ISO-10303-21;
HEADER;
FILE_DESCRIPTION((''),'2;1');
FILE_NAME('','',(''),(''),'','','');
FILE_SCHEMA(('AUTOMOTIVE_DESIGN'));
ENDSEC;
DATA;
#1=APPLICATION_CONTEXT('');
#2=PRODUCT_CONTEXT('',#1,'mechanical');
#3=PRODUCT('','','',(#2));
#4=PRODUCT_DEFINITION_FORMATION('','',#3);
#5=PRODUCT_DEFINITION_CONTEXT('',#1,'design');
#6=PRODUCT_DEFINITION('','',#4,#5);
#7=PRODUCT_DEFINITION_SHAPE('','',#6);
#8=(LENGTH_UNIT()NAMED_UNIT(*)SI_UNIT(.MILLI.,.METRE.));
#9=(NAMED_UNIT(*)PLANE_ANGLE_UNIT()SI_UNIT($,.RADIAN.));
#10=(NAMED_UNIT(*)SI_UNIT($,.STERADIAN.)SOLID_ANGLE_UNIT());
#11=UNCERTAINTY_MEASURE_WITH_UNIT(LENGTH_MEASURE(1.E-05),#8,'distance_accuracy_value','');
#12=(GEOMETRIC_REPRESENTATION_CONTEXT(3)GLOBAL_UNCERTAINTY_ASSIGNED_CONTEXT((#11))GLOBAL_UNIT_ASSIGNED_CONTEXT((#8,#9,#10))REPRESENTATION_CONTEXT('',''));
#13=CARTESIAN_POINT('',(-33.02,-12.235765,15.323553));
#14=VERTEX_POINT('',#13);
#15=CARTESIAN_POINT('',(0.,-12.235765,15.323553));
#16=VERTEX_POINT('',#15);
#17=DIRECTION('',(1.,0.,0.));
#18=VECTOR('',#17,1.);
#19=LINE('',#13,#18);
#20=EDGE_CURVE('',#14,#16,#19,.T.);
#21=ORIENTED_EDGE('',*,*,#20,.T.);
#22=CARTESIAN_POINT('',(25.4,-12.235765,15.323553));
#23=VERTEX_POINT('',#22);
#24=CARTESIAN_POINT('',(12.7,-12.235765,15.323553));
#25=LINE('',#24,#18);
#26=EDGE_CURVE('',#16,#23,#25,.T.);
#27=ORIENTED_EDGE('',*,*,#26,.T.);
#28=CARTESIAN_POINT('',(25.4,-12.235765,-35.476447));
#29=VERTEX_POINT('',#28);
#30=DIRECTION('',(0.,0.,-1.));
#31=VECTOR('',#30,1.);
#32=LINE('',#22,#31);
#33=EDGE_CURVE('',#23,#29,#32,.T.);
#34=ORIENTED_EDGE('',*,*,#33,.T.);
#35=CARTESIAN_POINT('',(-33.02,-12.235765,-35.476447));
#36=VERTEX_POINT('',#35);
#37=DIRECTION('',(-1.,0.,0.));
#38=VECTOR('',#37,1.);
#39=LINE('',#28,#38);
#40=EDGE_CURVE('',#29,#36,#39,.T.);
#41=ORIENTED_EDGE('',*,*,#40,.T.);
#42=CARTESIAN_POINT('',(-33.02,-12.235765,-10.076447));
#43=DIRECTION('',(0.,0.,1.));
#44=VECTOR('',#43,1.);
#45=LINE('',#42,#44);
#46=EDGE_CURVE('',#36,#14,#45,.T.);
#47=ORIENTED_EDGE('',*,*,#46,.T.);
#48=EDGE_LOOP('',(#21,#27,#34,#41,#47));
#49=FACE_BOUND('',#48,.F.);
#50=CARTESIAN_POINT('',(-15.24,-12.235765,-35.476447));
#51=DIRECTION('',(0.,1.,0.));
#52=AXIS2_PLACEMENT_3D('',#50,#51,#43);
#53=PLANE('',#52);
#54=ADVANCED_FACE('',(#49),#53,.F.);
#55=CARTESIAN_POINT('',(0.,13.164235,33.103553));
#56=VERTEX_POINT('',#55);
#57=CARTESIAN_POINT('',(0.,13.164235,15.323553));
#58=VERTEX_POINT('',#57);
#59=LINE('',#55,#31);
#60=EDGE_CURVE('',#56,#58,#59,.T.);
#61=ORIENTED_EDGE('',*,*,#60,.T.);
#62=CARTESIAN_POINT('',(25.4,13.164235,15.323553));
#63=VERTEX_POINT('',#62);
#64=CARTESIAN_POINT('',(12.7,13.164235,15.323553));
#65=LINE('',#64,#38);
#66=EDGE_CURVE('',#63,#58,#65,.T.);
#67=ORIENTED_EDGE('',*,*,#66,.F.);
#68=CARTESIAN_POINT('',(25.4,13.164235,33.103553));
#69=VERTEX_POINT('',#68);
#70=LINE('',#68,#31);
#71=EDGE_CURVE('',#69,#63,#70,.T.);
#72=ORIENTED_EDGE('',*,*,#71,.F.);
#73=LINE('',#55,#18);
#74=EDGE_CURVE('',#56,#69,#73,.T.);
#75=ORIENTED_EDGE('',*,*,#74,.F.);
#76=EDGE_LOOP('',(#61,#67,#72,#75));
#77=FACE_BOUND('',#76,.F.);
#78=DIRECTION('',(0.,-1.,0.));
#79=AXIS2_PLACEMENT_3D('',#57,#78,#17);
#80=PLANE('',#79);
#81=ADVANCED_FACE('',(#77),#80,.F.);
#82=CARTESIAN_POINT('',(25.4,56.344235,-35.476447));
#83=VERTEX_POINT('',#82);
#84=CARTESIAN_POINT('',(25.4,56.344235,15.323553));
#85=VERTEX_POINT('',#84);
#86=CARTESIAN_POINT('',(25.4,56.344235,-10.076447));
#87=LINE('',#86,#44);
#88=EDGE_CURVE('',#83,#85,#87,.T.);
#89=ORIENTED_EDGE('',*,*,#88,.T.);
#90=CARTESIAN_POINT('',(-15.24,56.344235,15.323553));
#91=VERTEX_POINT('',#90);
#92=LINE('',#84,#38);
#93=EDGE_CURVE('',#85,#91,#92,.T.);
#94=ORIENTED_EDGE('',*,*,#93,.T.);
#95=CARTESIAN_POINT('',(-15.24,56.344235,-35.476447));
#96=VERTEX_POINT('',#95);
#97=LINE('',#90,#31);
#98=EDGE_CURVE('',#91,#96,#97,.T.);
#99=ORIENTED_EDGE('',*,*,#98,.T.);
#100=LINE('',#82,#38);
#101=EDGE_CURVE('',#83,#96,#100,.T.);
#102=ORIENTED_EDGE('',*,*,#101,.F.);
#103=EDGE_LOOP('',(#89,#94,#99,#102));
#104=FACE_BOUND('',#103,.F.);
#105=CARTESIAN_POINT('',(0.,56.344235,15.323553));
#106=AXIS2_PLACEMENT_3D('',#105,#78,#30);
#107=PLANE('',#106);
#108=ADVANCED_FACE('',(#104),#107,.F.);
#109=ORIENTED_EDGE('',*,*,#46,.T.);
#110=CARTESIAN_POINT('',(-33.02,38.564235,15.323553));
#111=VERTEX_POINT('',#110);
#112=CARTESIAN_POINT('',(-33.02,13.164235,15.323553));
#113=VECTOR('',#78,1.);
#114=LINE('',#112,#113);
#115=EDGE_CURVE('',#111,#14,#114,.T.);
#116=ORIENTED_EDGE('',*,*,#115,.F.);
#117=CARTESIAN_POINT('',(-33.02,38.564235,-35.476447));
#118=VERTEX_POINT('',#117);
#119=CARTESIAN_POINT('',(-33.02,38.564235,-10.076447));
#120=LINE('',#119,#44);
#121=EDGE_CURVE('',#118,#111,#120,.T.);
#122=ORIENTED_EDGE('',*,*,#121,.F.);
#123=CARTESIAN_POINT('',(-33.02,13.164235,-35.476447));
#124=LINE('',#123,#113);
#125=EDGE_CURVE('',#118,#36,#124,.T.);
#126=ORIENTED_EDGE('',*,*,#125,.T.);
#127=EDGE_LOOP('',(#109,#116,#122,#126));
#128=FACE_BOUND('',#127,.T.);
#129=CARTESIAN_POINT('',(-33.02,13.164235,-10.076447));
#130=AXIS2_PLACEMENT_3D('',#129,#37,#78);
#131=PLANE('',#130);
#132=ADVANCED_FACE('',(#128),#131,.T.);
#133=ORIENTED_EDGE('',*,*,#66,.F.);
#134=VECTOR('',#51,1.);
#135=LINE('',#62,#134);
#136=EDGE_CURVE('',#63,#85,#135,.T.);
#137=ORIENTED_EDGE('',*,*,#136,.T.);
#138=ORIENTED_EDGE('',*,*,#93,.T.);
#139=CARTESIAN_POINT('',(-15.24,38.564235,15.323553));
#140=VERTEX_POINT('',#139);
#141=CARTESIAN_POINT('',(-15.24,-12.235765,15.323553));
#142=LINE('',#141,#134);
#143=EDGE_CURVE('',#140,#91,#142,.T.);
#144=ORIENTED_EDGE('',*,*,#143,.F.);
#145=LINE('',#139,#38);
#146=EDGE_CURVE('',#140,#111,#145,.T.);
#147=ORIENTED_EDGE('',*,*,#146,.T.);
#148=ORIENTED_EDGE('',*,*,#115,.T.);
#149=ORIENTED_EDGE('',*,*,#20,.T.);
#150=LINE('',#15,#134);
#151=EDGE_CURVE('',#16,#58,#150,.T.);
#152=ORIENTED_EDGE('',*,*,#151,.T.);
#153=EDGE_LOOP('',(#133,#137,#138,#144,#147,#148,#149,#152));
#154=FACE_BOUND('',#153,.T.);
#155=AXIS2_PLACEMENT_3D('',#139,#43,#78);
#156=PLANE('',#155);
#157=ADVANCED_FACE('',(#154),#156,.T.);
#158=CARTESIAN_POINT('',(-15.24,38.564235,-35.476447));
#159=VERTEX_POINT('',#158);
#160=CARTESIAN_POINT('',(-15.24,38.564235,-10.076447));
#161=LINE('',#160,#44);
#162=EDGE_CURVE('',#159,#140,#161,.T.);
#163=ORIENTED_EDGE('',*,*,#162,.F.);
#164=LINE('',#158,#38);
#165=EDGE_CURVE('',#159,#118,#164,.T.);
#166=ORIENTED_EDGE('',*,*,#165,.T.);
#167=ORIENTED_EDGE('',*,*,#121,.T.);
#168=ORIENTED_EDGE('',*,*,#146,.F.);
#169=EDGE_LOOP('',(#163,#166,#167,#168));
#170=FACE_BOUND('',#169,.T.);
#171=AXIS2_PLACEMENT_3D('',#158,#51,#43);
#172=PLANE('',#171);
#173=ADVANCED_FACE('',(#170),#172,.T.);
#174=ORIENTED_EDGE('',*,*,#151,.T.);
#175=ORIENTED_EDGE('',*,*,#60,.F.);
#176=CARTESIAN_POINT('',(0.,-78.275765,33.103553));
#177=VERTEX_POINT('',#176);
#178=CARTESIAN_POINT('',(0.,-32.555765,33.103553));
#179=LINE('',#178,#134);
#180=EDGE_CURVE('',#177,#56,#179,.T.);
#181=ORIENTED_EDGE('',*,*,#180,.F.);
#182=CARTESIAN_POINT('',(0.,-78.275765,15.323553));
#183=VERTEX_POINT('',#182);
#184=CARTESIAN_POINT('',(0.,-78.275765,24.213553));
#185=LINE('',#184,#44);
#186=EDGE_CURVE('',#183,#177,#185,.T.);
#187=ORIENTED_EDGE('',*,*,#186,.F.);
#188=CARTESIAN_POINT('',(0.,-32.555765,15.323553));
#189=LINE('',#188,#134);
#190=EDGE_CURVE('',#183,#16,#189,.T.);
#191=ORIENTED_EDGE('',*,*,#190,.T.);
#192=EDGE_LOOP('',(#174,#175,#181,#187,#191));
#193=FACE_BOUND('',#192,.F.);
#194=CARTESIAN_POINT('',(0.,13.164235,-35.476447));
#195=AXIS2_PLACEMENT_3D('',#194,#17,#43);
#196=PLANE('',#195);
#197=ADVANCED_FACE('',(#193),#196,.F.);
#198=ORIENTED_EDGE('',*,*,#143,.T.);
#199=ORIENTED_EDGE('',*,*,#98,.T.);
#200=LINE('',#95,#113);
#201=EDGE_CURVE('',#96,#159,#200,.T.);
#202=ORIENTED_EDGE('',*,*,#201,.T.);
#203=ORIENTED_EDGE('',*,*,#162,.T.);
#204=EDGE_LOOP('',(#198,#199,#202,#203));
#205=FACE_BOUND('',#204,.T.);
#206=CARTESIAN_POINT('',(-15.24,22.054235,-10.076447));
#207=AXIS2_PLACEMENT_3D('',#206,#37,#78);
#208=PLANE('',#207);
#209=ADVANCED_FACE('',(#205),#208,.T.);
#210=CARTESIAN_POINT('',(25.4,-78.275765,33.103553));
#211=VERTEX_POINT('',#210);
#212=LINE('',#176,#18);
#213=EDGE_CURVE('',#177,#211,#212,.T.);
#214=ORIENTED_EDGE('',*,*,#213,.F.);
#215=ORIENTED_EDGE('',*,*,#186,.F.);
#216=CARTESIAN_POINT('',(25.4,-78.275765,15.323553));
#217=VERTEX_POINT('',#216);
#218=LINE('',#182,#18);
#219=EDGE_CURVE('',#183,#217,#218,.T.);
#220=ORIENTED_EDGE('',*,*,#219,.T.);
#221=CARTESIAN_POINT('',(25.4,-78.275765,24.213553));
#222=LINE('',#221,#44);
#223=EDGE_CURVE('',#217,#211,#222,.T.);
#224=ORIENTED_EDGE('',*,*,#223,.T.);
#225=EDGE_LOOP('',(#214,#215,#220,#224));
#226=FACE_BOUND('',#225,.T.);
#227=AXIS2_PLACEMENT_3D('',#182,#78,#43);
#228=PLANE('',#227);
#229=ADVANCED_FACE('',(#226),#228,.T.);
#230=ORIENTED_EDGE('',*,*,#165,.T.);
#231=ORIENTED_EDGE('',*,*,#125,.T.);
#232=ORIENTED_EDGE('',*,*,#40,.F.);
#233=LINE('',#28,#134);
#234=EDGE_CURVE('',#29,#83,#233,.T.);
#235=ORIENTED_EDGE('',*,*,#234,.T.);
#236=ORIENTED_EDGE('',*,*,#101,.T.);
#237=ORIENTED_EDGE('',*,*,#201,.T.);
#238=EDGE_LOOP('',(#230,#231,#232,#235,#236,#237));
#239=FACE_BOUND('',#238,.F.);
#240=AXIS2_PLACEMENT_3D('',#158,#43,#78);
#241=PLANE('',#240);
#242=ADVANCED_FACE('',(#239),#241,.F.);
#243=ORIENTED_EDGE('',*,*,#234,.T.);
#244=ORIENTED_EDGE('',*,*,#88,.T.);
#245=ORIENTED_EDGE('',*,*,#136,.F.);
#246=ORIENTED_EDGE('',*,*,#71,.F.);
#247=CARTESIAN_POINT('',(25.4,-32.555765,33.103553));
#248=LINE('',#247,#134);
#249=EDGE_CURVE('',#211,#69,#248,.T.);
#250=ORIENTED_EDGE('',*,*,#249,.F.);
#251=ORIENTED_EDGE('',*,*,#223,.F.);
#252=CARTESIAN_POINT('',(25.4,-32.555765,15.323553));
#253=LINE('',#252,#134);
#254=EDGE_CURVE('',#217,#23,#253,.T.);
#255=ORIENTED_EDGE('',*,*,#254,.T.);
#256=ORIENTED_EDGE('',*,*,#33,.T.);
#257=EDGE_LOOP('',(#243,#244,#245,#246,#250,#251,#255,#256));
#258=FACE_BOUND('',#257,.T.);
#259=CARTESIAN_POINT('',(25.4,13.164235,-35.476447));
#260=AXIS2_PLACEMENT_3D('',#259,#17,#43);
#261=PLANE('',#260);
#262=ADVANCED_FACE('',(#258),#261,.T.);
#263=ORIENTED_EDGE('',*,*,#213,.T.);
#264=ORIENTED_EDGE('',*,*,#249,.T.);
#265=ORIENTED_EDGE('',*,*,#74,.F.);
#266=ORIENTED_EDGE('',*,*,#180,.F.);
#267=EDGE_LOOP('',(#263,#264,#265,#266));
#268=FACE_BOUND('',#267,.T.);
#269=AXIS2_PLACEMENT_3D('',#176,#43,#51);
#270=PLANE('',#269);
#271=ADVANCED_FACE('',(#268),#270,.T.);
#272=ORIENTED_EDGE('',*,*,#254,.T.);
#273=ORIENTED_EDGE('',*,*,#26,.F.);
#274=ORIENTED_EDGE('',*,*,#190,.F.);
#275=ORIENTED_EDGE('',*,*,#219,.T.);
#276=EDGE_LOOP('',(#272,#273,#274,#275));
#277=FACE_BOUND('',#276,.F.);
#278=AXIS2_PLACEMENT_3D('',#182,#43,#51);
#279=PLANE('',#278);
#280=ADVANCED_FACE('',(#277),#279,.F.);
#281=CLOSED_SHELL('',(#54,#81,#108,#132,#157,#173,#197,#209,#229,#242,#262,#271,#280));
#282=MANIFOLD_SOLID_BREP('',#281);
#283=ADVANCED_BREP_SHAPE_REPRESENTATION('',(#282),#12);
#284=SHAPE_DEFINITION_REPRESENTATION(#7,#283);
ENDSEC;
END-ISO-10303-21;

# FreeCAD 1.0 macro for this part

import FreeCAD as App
import Part
import Sketcher
from FreeCAD import Vector
Q = App.Units.Quantity

doc = App.newDocument("Part")
body = doc.addObject("PartDesign::Body", "Body")

# Sketch on YZ plane
sketch1 = doc.addObject("Sketcher::SketchObject", "Sketch")
body.addObject(sketch1)
sketch1.AttachmentSupport = (doc.YZ_Plane, [""])
sketch1.MapMode = "FlatFace"
sketch1.addGeometry(Part.LineSegment(Vector(-78, 33, 0), Vector(-78, 15, 0)), False)
sketch1.addGeometry(Part.LineSegment(Vector(-78, 15, 0), Vector(13, 15, 0)), False)
sketch1.addGeometry(Part.LineSegment(Vector(13, 15, 0), Vector(13, 33, 0)), False)
sketch1.addGeometry(Part.LineSegment(Vector(13, 33, 0), Vector(-78, 33, 0)), False)
sketch1.addConstraint(Sketcher.Constraint("Coincident", 0, 2, 1, 1))
sketch1.addConstraint(Sketcher.Constraint("Coincident", 1, 2, 2, 1))
sketch1.addConstraint(Sketcher.Constraint("Coincident", 2, 2, 3, 1))
sketch1.addConstraint(Sketcher.Constraint("Coincident", 3, 2, 0, 1))
sketch1.addConstraint(Sketcher.Constraint("Vertical", 0))
sketch1.addConstraint(Sketcher.Constraint("Horizontal", 1))
sketch1.addConstraint(Sketcher.Constraint("Vertical", 2))
sketch1.addConstraint(Sketcher.Constraint("Horizontal", 3))
sketch1.addConstraint(Sketcher.Constraint("DistanceX", 1, 1, 1, 2, Q("3.6 in")))
sketch1.addConstraint(Sketcher.Constraint("DistanceY", 0, 2, 0, 1, Q("0.7 in")))
sketch1.addConstraint(Sketcher.Constraint("DistanceX", 0, 2, -1, 1, 78.275765))
sketch1.addConstraint(Sketcher.Constraint("DistanceY", -1, 1, 0, 2, 15.323553))
pad1 = doc.addObject("PartDesign::Pad", "Pad")
body.addObject(pad1)
pad1.Profile = sketch1
pad1.Length = Q("1 in")

# Sketch on XY plane
sketch2 = doc.addObject("Sketcher::SketchObject", "Sketch001")
body.addObject(sketch2)
sketch2.AttachmentSupport = (doc.XY_Plane, [""])
sketch2.MapMode = "FlatFace"
sketch2.AttachmentOffset = App.Placement(Vector(0, 0, 15.323553), App.Rotation())
sketch2.addGeometry(Part.LineSegment(Vector(0, -12, 0), Vector(0, 13, 0)), False)
sketch2.addGeometry(Part.LineSegment(Vector(0, 13, 0), Vector(25, 13, 0)), False)
sketch2.addGeometry(Part.LineSegment(Vector(25, 13, 0), Vector(25, -12, 0)), False)
sketch2.addGeometry(Part.LineSegment(Vector(25, -12, 0), Vector(0, -12, 0)), False)
sketch2.addConstraint(Sketcher.Constraint("Coincident", 0, 2, 1, 1))
sketch2.addConstraint(Sketcher.Constraint("Coincident", 1, 2, 2, 1))
sketch2.addConstraint(Sketcher.Constraint("Coincident", 2, 2, 3, 1))
sketch2.addConstraint(Sketcher.Constraint("Coincident", 3, 2, 0, 1))
sketch2.addConstraint(Sketcher.Constraint("Vertical", 0))
sketch2.addConstraint(Sketcher.Constraint("Horizontal", 1))
sketch2.addConstraint(Sketcher.Constraint("Vertical", 2))
sketch2.addConstraint(Sketcher.Constraint("Horizontal", 3))
sketch2.addConstraint(Sketcher.Constraint("PointOnObject", 0, 2, -2))
sketch2.addConstraint(Sketcher.Constraint("Equal", 3, 0))
sketch2.addConstraint(Sketcher.Constraint("DistanceX", 1, 1, 1, 2, Q("1 in")))
sketch2.addConstraint(Sketcher.Constraint("DistanceY", -1, 1, 0, 2, 13.164235))
pad2 = doc.addObject("PartDesign::Pad", "Pad001")
body.addObject(pad2)
pad2.Profile = sketch2
pad2.Length = Q("2 in")
pad2.Reversed = True

# Sketch on XZ plane
sketch3 = doc.addObject("Sketcher::SketchObject", "Sketch002")
body.addObject(sketch3)
sketch3.AttachmentSupport = (doc.XZ_Plane, [""])
sketch3.MapMode = "FlatFace"
sketch3.AttachmentOffset = App.Placement(Vector(0, 0, -13.164235), App.Rotation())
sketch3.addGeometry(Part.LineSegment(Vector(25, 15, 0), Vector(25, -35, 0)), False)
sketch3.addGeometry(Part.LineSegment(Vector(25, -35, 0), Vector(0, -35, 0)), False)
sketch3.addGeometry(Part.LineSegment(Vector(0, -35, 0), Vector(0, 15, 0)), False)
sketch3.addGeometry(Part.LineSegment(Vector(0, 15, 0), Vector(25, 15, 0)), False)
sketch3.addConstraint(Sketcher.Constraint("Coincident", 0, 2, 1, 1))
sketch3.addConstraint(Sketcher.Constraint("Coincident", 1, 2, 2, 1))
sketch3.addConstraint(Sketcher.Constraint("Coincident", 2, 2, 3, 1))
sketch3.addConstraint(Sketcher.Constraint("Coincident", 3, 2, 0, 1))
sketch3.addConstraint(Sketcher.Constraint("Vertical", 0))
sketch3.addConstraint(Sketcher.Constraint("Horizontal", 1))
sketch3.addConstraint(Sketcher.Constraint("Vertical", 2))
sketch3.addConstraint(Sketcher.Constraint("Horizontal", 3))
sketch3.addConstraint(Sketcher.Constraint("PointOnObject", 1, 2, -2))
sketch3.addConstraint(Sketcher.Constraint("DistanceX", 1, 2, 1, 1, Q("1 in")))
sketch3.addConstraint(Sketcher.Constraint("DistanceY", 0, 2, 0, 1, Q("2 in")))
sketch3.addConstraint(Sketcher.Constraint("DistanceY", 0, 2, -1, 1, 35.476447))
pad3 = doc.addObject("PartDesign::Pad", "Pad002")
body.addObject(pad3)
pad3.Profile = sketch3
pad3.Length = Q("1.7 in")
pad3.Reversed = True

# Sketch on YZ plane
sketch4 = doc.addObject("Sketcher::SketchObject", "Sketch003")
body.addObject(sketch4)
sketch4.AttachmentSupport = (doc.YZ_Plane, [""])
sketch4.MapMode = "FlatFace"
sketch4.addGeometry(Part.LineSegment(Vector(-12, 15, 0), Vector(56, 15, 0)), False)
sketch4.addGeometry(Part.LineSegment(Vector(56, 15, 0), Vector(56, -35, 0)), False)
sketch4.addGeometry(Part.LineSegment(Vector(56, -35, 0), Vector(-12, -35, 0)), False)
sketch4.addGeometry(Part.LineSegment(Vector(-12, -35, 0), Vector(-12, 15, 0)), False)
sketch4.addConstraint(Sketcher.Constraint("Coincident", 0, 2, 1, 1))
sketch4.addConstraint(Sketcher.Constraint("Coincident", 1, 2, 2, 1))
sketch4.addConstraint(Sketcher.Constraint("Coincident", 2, 2, 3, 1))
sketch4.addConstraint(Sketcher.Constraint("Coincident", 3, 2, 0, 1))
sketch4.addConstraint(Sketcher.Constraint("Horizontal", 0))
sketch4.addConstraint(Sketcher.Constraint("Vertical", 1))
sketch4.addConstraint(Sketcher.Constraint("Horizontal", 2))
sketch4.addConstraint(Sketcher.Constraint("Vertical", 3))
sketch4.addConstraint(Sketcher.Constraint("DistanceY", 1, 2, 1, 1, Q("2 in")))
sketch4.addConstraint(Sketcher.Constraint("DistanceX", 0, 1, 0, 2, Q("2.7 in")))
sketch4.addConstraint(Sketcher.Constraint("DistanceX", -1, 1, 0, 2, 56.344235))
sketch4.addConstraint(Sketcher.Constraint("DistanceY", -1, 1, 0, 2, 15.323553))
pad4 = doc.addObject("PartDesign::Pad", "Pad003")
body.addObject(pad4)
pad4.Profile = sketch4
pad4.Length = Q("0.6 in")
pad4.Reversed = True

# Sketch on YZ plane
sketch5 = doc.addObject("Sketcher::SketchObject", "Sketch004")
body.addObject(sketch5)
sketch5.AttachmentSupport = (doc.YZ_Plane, [""])
sketch5.MapMode = "FlatFace"
sketch5.AttachmentOffset = App.Placement(Vector(0, 0, -0.6 * 25.4), App.Rotation())
sketch5.addGeometry(Part.LineSegment(Vector(39, 15, 0), Vector(39, -35, 0)), False)
sketch5.addGeometry(Part.LineSegment(Vector(39, -35, 0), Vector(-12, -35, 0)), False)
sketch5.addGeometry(Part.LineSegment(Vector(-12, -35, 0), Vector(-12, 15, 0)), False)
sketch5.addGeometry(Part.LineSegment(Vector(-12, 15, 0), Vector(39, 15, 0)), False)
sketch5.addConstraint(Sketcher.Constraint("Coincident", 0, 2, 1, 1))
sketch5.addConstraint(Sketcher.Constraint("Coincident", 1, 2, 2, 1))
sketch5.addConstraint(Sketcher.Constraint("Coincident", 2, 2, 3, 1))
sketch5.addConstraint(Sketcher.Constraint("Coincident", 3, 2, 0, 1))
sketch5.addConstraint(Sketcher.Constraint("Vertical", 0))
sketch5.addConstraint(Sketcher.Constraint("Horizontal", 1))
sketch5.addConstraint(Sketcher.Constraint("Vertical", 2))
sketch5.addConstraint(Sketcher.Constraint("Horizontal", 3))
sketch5.addConstraint(Sketcher.Constraint("Equal", 3, 0))
sketch5.addConstraint(Sketcher.Constraint("DistanceX", 1, 2, 1, 1, Q("2 in")))
sketch5.addConstraint(Sketcher.Constraint("DistanceX", -1, 1, 0, 2, 38.564235))
sketch5.addConstraint(Sketcher.Constraint("DistanceY", 0, 2, -1, 1, 35.476447))
pad5 = doc.addObject("PartDesign::Pad", "Pad004")
body.addObject(pad5)
pad5.Profile = sketch5
pad5.Length = Q("0.7 in")
pad5.Reversed = True

doc.recompute()
